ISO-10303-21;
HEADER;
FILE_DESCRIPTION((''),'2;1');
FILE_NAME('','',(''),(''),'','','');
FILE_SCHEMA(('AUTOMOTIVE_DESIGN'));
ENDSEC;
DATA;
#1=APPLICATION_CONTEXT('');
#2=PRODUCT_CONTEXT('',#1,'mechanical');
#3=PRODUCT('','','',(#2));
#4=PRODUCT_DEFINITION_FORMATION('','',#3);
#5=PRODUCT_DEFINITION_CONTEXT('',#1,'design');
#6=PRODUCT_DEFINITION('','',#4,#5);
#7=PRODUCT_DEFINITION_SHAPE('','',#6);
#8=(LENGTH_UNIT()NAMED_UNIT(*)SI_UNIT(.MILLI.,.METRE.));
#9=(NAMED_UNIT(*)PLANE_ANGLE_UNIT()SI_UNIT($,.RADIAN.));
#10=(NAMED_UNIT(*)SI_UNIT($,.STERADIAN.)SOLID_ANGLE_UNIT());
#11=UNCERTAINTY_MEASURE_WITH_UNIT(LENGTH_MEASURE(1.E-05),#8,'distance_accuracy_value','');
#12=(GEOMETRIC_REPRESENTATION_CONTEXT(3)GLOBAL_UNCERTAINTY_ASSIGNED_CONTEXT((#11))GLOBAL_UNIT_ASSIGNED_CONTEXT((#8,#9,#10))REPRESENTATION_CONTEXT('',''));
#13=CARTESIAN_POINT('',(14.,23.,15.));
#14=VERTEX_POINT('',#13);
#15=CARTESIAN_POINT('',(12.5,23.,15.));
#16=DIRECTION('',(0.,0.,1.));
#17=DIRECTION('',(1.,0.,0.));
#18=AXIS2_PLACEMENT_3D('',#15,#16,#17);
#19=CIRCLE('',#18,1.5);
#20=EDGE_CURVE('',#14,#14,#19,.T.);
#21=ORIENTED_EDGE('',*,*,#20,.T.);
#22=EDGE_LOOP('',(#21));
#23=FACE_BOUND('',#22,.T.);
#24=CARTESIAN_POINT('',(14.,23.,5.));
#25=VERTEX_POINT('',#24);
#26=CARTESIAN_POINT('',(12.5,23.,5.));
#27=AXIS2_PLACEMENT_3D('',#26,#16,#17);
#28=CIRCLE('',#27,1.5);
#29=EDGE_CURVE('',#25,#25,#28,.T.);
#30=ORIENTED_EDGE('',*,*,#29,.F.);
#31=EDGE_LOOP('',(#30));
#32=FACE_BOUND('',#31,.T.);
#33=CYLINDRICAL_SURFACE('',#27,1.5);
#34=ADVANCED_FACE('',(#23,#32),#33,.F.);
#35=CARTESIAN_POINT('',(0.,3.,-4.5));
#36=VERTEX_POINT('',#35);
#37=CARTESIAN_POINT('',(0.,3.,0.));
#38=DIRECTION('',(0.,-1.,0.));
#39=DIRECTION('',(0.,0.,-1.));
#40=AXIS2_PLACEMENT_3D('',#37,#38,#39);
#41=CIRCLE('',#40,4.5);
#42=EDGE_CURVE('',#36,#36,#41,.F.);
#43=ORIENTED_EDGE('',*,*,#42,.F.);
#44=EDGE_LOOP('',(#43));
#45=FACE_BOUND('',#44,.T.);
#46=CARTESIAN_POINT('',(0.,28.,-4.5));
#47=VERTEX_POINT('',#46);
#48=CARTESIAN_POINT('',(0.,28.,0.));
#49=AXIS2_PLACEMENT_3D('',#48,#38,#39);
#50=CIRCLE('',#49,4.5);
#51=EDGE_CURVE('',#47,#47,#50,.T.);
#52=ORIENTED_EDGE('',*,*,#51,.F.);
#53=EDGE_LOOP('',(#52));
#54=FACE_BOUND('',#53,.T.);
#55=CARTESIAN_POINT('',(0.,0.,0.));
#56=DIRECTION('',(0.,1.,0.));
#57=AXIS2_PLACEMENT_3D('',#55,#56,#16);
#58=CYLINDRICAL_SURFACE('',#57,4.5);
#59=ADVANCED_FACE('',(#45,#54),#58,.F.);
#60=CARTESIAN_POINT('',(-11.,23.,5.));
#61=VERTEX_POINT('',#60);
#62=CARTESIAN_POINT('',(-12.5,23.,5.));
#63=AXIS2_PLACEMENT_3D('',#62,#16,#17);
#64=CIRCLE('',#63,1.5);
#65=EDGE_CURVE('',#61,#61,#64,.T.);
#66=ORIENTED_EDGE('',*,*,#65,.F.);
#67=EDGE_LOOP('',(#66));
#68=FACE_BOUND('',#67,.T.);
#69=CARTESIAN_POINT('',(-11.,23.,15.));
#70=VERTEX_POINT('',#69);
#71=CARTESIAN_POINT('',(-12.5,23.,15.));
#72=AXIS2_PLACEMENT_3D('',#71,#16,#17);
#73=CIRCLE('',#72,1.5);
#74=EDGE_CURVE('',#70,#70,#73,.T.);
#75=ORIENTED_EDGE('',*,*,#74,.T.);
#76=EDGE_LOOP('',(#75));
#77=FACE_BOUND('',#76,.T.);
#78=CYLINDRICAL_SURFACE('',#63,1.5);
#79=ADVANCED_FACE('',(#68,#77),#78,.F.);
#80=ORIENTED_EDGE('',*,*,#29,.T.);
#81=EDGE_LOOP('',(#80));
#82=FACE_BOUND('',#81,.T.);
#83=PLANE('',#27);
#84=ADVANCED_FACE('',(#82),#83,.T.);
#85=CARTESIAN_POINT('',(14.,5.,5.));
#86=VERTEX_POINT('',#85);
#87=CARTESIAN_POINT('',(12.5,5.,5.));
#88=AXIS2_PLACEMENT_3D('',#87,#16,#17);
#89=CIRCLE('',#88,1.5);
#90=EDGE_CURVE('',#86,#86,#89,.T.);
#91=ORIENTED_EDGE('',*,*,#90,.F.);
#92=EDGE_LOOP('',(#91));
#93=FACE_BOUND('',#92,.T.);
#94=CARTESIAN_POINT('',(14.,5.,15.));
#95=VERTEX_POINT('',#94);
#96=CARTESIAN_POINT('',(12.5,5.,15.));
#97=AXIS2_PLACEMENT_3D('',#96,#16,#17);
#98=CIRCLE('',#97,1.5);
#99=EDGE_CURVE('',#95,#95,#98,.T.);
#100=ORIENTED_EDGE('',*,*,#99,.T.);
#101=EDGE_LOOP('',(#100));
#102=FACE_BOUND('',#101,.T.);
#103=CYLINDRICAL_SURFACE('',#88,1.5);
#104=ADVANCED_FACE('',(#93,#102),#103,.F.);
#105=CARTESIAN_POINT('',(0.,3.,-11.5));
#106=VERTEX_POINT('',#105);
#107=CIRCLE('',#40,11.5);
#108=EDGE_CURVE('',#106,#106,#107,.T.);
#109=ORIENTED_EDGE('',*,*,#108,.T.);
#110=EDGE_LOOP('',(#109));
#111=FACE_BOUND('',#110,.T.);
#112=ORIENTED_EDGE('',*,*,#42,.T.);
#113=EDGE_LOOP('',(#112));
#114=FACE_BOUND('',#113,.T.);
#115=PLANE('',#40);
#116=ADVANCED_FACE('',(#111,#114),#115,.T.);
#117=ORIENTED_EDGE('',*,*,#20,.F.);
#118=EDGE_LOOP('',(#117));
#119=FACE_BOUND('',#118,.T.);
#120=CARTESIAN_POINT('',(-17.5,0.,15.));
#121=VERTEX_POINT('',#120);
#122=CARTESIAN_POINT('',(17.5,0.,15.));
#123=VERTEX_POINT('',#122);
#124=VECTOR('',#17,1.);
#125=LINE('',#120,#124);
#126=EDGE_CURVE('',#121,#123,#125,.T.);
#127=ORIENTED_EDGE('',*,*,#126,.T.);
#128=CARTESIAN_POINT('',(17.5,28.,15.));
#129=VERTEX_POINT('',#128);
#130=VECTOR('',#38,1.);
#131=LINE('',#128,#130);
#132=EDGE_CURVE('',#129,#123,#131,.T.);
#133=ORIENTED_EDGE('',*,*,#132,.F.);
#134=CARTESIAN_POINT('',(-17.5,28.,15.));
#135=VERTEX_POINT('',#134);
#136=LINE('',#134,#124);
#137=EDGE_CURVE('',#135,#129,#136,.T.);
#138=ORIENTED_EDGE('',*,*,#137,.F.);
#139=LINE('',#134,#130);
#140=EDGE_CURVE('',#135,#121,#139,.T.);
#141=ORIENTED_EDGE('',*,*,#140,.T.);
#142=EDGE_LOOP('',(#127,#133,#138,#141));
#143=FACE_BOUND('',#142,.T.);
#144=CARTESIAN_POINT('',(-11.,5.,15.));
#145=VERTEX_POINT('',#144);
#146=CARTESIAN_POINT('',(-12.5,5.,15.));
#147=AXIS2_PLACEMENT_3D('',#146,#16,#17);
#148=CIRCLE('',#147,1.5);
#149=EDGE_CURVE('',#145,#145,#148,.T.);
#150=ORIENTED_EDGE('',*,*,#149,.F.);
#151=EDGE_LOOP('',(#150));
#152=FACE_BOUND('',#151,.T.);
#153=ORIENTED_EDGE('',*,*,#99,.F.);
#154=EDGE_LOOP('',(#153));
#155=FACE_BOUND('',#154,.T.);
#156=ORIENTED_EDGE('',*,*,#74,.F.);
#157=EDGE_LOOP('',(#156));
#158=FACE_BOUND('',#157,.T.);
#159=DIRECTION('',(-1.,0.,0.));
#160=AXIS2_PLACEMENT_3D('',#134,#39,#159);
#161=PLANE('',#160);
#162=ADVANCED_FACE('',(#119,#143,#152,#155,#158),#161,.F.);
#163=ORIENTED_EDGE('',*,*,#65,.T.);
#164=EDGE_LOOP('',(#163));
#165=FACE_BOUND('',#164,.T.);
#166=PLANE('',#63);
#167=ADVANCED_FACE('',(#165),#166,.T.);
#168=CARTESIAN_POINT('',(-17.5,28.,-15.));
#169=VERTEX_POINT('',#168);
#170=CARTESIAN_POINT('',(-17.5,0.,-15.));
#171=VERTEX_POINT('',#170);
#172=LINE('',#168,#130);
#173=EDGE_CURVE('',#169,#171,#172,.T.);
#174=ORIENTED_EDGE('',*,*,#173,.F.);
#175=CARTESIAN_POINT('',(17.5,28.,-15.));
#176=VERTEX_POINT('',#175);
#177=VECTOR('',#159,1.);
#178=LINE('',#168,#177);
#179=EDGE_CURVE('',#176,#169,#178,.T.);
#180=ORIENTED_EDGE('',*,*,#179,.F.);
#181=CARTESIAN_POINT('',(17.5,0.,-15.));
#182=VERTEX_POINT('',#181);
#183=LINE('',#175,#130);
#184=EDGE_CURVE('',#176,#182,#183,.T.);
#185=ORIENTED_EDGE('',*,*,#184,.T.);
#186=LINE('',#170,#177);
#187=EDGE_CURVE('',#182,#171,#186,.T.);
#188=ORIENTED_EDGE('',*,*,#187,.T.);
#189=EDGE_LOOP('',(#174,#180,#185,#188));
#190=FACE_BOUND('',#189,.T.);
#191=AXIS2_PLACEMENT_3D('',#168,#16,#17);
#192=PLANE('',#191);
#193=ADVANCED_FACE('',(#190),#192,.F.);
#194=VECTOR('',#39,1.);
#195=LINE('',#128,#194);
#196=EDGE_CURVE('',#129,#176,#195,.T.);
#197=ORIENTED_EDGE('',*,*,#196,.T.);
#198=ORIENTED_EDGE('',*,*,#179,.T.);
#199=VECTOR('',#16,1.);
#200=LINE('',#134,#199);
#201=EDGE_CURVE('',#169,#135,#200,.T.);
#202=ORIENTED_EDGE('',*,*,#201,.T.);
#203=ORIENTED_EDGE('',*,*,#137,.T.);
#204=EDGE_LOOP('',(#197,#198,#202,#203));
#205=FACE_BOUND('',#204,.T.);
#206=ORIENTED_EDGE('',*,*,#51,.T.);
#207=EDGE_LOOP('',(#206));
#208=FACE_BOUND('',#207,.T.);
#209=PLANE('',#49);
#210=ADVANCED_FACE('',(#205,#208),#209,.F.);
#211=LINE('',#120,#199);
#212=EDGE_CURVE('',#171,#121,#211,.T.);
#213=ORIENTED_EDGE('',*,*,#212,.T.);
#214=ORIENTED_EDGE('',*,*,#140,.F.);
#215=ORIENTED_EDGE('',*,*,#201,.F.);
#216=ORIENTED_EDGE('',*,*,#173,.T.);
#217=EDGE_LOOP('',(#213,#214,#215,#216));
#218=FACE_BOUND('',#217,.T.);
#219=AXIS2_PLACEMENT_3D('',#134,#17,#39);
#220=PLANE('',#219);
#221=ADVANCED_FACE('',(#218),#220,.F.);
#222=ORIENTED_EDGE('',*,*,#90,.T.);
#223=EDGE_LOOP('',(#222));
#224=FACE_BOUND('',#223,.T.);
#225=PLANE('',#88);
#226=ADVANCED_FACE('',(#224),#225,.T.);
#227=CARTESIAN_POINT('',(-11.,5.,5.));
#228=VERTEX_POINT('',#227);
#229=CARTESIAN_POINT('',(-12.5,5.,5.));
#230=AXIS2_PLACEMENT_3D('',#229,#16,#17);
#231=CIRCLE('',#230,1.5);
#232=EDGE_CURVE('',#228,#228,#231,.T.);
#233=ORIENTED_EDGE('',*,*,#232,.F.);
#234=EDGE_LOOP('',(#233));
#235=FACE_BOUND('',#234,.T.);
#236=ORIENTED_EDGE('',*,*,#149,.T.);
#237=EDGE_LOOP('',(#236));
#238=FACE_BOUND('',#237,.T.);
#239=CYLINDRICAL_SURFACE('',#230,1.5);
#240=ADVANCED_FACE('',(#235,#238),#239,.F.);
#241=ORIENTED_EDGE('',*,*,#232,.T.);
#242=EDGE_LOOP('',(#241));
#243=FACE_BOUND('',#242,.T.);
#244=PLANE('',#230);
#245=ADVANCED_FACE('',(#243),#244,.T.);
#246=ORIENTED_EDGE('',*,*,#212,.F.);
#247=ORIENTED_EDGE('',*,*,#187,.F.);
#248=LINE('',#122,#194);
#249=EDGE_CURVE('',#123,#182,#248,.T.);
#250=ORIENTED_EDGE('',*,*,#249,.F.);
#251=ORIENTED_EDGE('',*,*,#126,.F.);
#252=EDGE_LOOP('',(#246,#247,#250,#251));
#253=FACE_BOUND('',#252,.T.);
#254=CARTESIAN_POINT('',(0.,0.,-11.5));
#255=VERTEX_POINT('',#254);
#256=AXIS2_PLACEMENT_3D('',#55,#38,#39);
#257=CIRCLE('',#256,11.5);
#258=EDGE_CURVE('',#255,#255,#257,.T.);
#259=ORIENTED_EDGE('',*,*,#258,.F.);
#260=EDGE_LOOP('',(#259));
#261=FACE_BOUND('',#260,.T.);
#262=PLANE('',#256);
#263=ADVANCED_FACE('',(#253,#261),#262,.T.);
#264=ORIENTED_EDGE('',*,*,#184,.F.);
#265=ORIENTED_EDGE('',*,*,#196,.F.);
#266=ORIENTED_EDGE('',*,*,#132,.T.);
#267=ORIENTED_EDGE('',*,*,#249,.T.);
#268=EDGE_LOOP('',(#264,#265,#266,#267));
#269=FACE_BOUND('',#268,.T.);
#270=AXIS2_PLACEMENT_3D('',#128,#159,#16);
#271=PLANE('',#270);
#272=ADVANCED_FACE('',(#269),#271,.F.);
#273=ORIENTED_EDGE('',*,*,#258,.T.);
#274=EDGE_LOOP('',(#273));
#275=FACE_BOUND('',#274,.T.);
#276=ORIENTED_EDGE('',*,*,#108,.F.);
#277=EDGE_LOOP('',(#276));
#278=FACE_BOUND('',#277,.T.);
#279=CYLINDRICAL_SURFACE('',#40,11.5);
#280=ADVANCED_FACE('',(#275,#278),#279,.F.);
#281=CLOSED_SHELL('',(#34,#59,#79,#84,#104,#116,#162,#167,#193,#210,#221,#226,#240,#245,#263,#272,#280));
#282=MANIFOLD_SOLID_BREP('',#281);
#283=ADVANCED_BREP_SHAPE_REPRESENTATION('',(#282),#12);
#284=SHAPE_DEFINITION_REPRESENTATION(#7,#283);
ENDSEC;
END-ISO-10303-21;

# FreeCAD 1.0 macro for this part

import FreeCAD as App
import Part
import Sketcher
Q = App.Units.Quantity


def add_polygon(sketch, points):
    """Adds a closed chain of lines whose ends are joined by coincident constraints."""
    first, n = sketch.GeometryCount, len(points)
    for a, b in zip(points, points[1:] + points[:1]):
        sketch.addGeometry(Part.LineSegment(App.Vector(*a, 0), App.Vector(*b, 0)), False)
    for i in range(n):
        sketch.addConstraint(Sketcher.Constraint("Coincident", first + i, 2, first + (i + 1) % n, 1))

doc = App.newDocument("Part")
body = doc.addObject("PartDesign::Body", "Body")

# Sketch on XZ plane
sketch1 = doc.addObject("Sketcher::SketchObject", "Sketch")
body.addObject(sketch1)
sketch1.AttachmentSupport = (doc.XZ_Plane, [""])
sketch1.MapMode = "FlatFace"
add_polygon(sketch1, [(-17.5, -15), (-17.5, 15), (17.5, 15), (17.5, -15)])  # lines 0-3
sketch1.addConstraint([
    Sketcher.Constraint("Vertical", 0),
    Sketcher.Constraint("Horizontal", 1),
    Sketcher.Constraint("Vertical", 2),
    Sketcher.Constraint("Horizontal", 3),
    Sketcher.Constraint("Symmetric", 0, 2, 2, 2, -1, 1),
    Sketcher.Constraint("DistanceX", 1, 1, 1, 2, Q("35 mm")),
    Sketcher.Constraint("DistanceY", 0, 1, 0, 2, Q("30 mm")),
])
pad1 = doc.addObject("PartDesign::Pad", "Pad")
body.addObject(pad1)
pad1.Profile = sketch1
pad1.Length = 28
pad1.Reversed = True

# Sketch on XY plane
sketch2 = doc.addObject("Sketcher::SketchObject", "Sketch001")
body.addObject(sketch2)
sketch2.AttachmentSupport = (doc.XY_Plane, [""])
sketch2.MapMode = "FlatFace"
sketch2.AttachmentOffset = App.Placement(App.Vector(0, 0, 15), App.Rotation())
sketch2.addGeometry([
    Part.Circle(App.Vector(-12.5, 23, 0), App.Vector(0, 0, 1), 1.5),
    Part.Circle(App.Vector(12.5, 23, 0), App.Vector(0, 0, 1), 1.5),
    Part.Circle(App.Vector(12.5, 5, 0), App.Vector(0, 0, 1), 1.5),
    Part.Circle(App.Vector(-12.5, 5, 0), App.Vector(0, 0, 1), 1.5),
], False)
sketch2.addConstraint([
    Sketcher.Constraint("Equal", 0, 1),
    Sketcher.Constraint("Equal", 1, 2),
    Sketcher.Constraint("Equal", 2, 3),
    Sketcher.Constraint("Symmetric", 0, 3, 1, 3, -2),
    Sketcher.Constraint("Symmetric", 2, 3, 3, 3, -2),
    Sketcher.Constraint("Vertical", 1, 3, 2, 3),
    Sketcher.Constraint("Diameter", 0, Q("3 mm")),
    Sketcher.Constraint("DistanceY", -1, 1, 0, 3, Q("23 mm")),
    Sketcher.Constraint("DistanceY", -1, 1, 2, 3, Q("5 mm")),
    Sketcher.Constraint("DistanceX", 0, 3, 1, 3, Q("25 mm")),
])
pocket1 = doc.addObject("PartDesign::Pocket", "Pocket")
body.addObject(pocket1)
pocket1.Profile = sketch2
pocket1.Length = 10

# Sketch on XZ plane
sketch3 = doc.addObject("Sketcher::SketchObject", "Sketch002")
body.addObject(sketch3)
sketch3.AttachmentSupport = (doc.XZ_Plane, [""])
sketch3.MapMode = "FlatFace"
sketch3.addGeometry(Part.Circle(App.Vector(0, 0, 0), App.Vector(0, 0, 1), 11.5), False)
sketch3.addConstraint([
    Sketcher.Constraint("Coincident", 0, 3, -1, 1),
    Sketcher.Constraint("Diameter", 0, Q("23 mm")),
])
pocket2 = doc.addObject("PartDesign::Pocket", "Pocket001")
body.addObject(pocket2)
pocket2.Profile = sketch3
pocket2.Length = 3

# Sketch on XZ plane
sketch4 = doc.addObject("Sketcher::SketchObject", "Sketch003")
body.addObject(sketch4)
sketch4.AttachmentSupport = (doc.XZ_Plane, [""])
sketch4.MapMode = "FlatFace"
sketch4.AttachmentOffset = App.Placement(App.Vector(0, 0, -3), App.Rotation())
sketch4.addGeometry(Part.Circle(App.Vector(0, 0, 0), App.Vector(0, 0, 1), 4.5), False)
sketch4.addConstraint([
    Sketcher.Constraint("Coincident", 0, 3, -1, 1),
    Sketcher.Constraint("Diameter", 0, Q("9 mm")),
])
pocket3 = doc.addObject("PartDesign::Pocket", "Pocket002")
body.addObject(pocket3)
pocket3.Profile = sketch4
pocket3.Type = "ThroughAll"
pocket3.Midplane = True

doc.recompute()
